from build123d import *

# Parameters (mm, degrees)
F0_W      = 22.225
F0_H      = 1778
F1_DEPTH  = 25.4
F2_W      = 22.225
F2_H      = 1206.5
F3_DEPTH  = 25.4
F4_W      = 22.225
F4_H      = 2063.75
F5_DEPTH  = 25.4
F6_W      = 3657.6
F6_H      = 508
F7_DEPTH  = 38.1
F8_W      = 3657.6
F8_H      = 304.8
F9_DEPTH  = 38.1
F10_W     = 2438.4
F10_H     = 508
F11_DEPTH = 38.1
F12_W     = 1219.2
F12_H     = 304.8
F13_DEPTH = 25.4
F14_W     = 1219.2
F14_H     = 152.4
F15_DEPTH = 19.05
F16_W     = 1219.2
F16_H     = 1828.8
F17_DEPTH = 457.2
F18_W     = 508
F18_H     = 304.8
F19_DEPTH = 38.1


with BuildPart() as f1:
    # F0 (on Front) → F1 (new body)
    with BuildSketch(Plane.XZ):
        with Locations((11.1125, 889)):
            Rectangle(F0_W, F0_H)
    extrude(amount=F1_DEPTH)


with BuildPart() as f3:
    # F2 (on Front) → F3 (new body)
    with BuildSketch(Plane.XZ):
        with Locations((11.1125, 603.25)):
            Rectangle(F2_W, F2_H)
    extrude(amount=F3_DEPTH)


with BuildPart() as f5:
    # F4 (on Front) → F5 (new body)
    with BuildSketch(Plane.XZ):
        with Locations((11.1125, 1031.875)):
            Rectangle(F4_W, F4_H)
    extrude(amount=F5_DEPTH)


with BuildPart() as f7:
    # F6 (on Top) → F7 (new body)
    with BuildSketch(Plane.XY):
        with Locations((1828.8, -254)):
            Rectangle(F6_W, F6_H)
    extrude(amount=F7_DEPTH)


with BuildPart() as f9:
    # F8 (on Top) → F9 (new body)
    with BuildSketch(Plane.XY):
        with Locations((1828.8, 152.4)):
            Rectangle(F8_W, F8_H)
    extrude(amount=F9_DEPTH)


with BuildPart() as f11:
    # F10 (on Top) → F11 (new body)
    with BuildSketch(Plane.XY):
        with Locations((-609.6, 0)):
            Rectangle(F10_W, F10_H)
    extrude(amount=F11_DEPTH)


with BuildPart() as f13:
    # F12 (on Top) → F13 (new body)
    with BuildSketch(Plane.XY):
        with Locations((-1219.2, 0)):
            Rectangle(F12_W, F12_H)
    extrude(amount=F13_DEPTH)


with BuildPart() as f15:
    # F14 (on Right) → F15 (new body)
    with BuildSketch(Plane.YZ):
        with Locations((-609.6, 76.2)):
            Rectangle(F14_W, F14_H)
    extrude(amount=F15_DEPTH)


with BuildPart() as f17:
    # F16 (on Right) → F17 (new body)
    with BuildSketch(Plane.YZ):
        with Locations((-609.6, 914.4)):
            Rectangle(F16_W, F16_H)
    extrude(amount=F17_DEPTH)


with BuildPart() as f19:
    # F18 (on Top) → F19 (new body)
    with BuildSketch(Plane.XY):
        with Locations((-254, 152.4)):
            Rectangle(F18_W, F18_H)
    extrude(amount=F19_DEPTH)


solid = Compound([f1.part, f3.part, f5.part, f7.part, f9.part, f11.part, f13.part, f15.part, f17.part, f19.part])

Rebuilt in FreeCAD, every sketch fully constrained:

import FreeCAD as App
import Part
import Sketcher
from FreeCAD import Vector
Q = App.Units.Quantity

doc = App.newDocument("Part")
body = doc.addObject("PartDesign::Body", "Body")

# Sketch on XZ plane
sketch1 = body.newObject("Sketcher::SketchObject", "Sketch")
sketch1.AttachmentSupport = (doc.getObject("XZ_Plane"), [""])
sketch1.MapMode = "FlatFace"
sketch1.addGeometry(Part.LineSegment(Vector(0, 1778, 0), Vector(0, 0, 0)), False)
sketch1.addGeometry(Part.LineSegment(Vector(0, 0, 0), Vector(22, 0, 0)), False)
sketch1.addGeometry(Part.LineSegment(Vector(22, 0, 0), Vector(22, 1778, 0)), False)
sketch1.addGeometry(Part.LineSegment(Vector(22, 1778, 0), Vector(0, 1778, 0)), False)
sketch1.addConstraint(Sketcher.Constraint("Coincident", 0, 2, 1, 1))
sketch1.addConstraint(Sketcher.Constraint("Coincident", 1, 2, 2, 1))
sketch1.addConstraint(Sketcher.Constraint("Coincident", 2, 2, 3, 1))
sketch1.addConstraint(Sketcher.Constraint("Coincident", 3, 2, 0, 1))
sketch1.addConstraint(Sketcher.Constraint("Vertical", 0))
sketch1.addConstraint(Sketcher.Constraint("Horizontal", 1))
sketch1.addConstraint(Sketcher.Constraint("Vertical", 2))
sketch1.addConstraint(Sketcher.Constraint("Horizontal", 3))
sketch1.addConstraint(Sketcher.Constraint("Coincident", 0, 2, -1, 1))
sketch1.addConstraint(Sketcher.Constraint("DistanceY", 0, 2, 0, 1, Q("70 in")))
sketch1.addConstraint(Sketcher.Constraint("DistanceX", 1, 1, 1, 2, Q("0.875 in")))
pad1 = body.newObject("PartDesign::Pad", "Pad")
pad1.Profile = sketch1
pad1.Length = Q("1 in")
body2 = doc.addObject("PartDesign::Body", "Body001")

# Sketch on XZ plane
sketch2 = body2.newObject("Sketcher::SketchObject", "Sketch001")
sketch2.AttachmentSupport = (doc.getObject("XZ_Plane001"), [""])
sketch2.MapMode = "FlatFace"
sketch2.addGeometry(Part.LineSegment(Vector(0, 1206, 0), Vector(0, 0, 0)), False)
sketch2.addGeometry(Part.LineSegment(Vector(0, 0, 0), Vector(22, 0, 0)), False)
sketch2.addGeometry(Part.LineSegment(Vector(22, 0, 0), Vector(22, 1206, 0)), False)
sketch2.addGeometry(Part.LineSegment(Vector(22, 1206, 0), Vector(0, 1206, 0)), False)
sketch2.addConstraint(Sketcher.Constraint("Coincident", 0, 2, 1, 1))
sketch2.addConstraint(Sketcher.Constraint("Coincident", 1, 2, 2, 1))
sketch2.addConstraint(Sketcher.Constraint("Coincident", 2, 2, 3, 1))
sketch2.addConstraint(Sketcher.Constraint("Coincident", 3, 2, 0, 1))
sketch2.addConstraint(Sketcher.Constraint("Vertical", 0))
sketch2.addConstraint(Sketcher.Constraint("Horizontal", 1))
sketch2.addConstraint(Sketcher.Constraint("Vertical", 2))
sketch2.addConstraint(Sketcher.Constraint("Horizontal", 3))
sketch2.addConstraint(Sketcher.Constraint("Coincident", 0, 2, -1, 1))
sketch2.addConstraint(Sketcher.Constraint("DistanceY", 0, 2, 0, 1, Q("47.5 in")))
sketch2.addConstraint(Sketcher.Constraint("DistanceX", 1, 1, 1, 2, Q("0.875 in")))
pad2 = body2.newObject("PartDesign::Pad", "Pad001")
pad2.Profile = sketch2
pad2.Length = Q("1 in")
body3 = doc.addObject("PartDesign::Body", "Body002")

# Sketch on XZ plane
sketch3 = body3.newObject("Sketcher::SketchObject", "Sketch002")
sketch3.AttachmentSupport = (doc.getObject("XZ_Plane002"), [""])
sketch3.MapMode = "FlatFace"
sketch3.addGeometry(Part.LineSegment(Vector(0, 2064, 0), Vector(0, 0, 0)), False)
sketch3.addGeometry(Part.LineSegment(Vector(0, 0, 0), Vector(22, 0, 0)), False)
sketch3.addGeometry(Part.LineSegment(Vector(22, 0, 0), Vector(22, 2064, 0)), False)
sketch3.addGeometry(Part.LineSegment(Vector(22, 2064, 0), Vector(0, 2064, 0)), False)
sketch3.addConstraint(Sketcher.Constraint("Coincident", 0, 2, 1, 1))
sketch3.addConstraint(Sketcher.Constraint("Coincident", 1, 2, 2, 1))
sketch3.addConstraint(Sketcher.Constraint("Coincident", 2, 2, 3, 1))
sketch3.addConstraint(Sketcher.Constraint("Coincident", 3, 2, 0, 1))
sketch3.addConstraint(Sketcher.Constraint("Vertical", 0))
sketch3.addConstraint(Sketcher.Constraint("Horizontal", 1))
sketch3.addConstraint(Sketcher.Constraint("Vertical", 2))
sketch3.addConstraint(Sketcher.Constraint("Horizontal", 3))
sketch3.addConstraint(Sketcher.Constraint("Coincident", 0, 2, -1, 1))
sketch3.addConstraint(Sketcher.Constraint("DistanceY", 0, 2, 0, 1, Q("81.25 in")))
sketch3.addConstraint(Sketcher.Constraint("DistanceX", 1, 1, 1, 2, Q("0.875 in")))
pad3 = body3.newObject("PartDesign::Pad", "Pad002")
pad3.Profile = sketch3
pad3.Length = Q("1 in")
body4 = doc.addObject("PartDesign::Body", "Body003")

# Sketch on XY plane
sketch4 = body4.newObject("Sketcher::SketchObject", "Sketch003")
sketch4.AttachmentSupport = (doc.getObject("XY_Plane003"), [""])
sketch4.MapMode = "FlatFace"
sketch4.addGeometry(Part.LineSegment(Vector(0, 0, 0), Vector(0, -508, 0)), False)
sketch4.addGeometry(Part.LineSegment(Vector(0, -508, 0), Vector(3658, -508, 0)), False)
sketch4.addGeometry(Part.LineSegment(Vector(3658, -508, 0), Vector(3658, 0, 0)), False)
sketch4.addGeometry(Part.LineSegment(Vector(3658, 0, 0), Vector(0, 0, 0)), False)
sketch4.addConstraint(Sketcher.Constraint("Coincident", 0, 2, 1, 1))
sketch4.addConstraint(Sketcher.Constraint("Coincident", 1, 2, 2, 1))
sketch4.addConstraint(Sketcher.Constraint("Coincident", 2, 2, 3, 1))
sketch4.addConstraint(Sketcher.Constraint("Coincident", 3, 2, 0, 1))
sketch4.addConstraint(Sketcher.Constraint("Vertical", 0))
sketch4.addConstraint(Sketcher.Constraint("Horizontal", 1))
sketch4.addConstraint(Sketcher.Constraint("Vertical", 2))
sketch4.addConstraint(Sketcher.Constraint("Horizontal", 3))
sketch4.addConstraint(Sketcher.Constraint("Coincident", 3, 2, -1, 1))
sketch4.addConstraint(Sketcher.Constraint("DistanceX", 1, 1, 1, 2, Q("144 in")))
sketch4.addConstraint(Sketcher.Constraint("DistanceY", 0, 2, 0, 1, Q("20 in")))
pad4 = body4.newObject("PartDesign::Pad", "Pad003")
pad4.Profile = sketch4
pad4.Length = Q("1.5 in")
body5 = doc.addObject("PartDesign::Body", "Body004")

# Sketch on XY plane
sketch5 = body5.newObject("Sketcher::SketchObject", "Sketch004")
sketch5.AttachmentSupport = (doc.getObject("XY_Plane004"), [""])
sketch5.MapMode = "FlatFace"
sketch5.addGeometry(Part.LineSegment(Vector(0, 305, 0), Vector(0, 0, 0)), False)
sketch5.addGeometry(Part.LineSegment(Vector(0, 0, 0), Vector(3658, 0, 0)), False)
sketch5.addGeometry(Part.LineSegment(Vector(3658, 0, 0), Vector(3658, 305, 0)), False)
sketch5.addGeometry(Part.LineSegment(Vector(3658, 305, 0), Vector(0, 305, 0)), False)
sketch5.addConstraint(Sketcher.Constraint("Coincident", 0, 2, 1, 1))
sketch5.addConstraint(Sketcher.Constraint("Coincident", 1, 2, 2, 1))
sketch5.addConstraint(Sketcher.Constraint("Coincident", 2, 2, 3, 1))
sketch5.addConstraint(Sketcher.Constraint("Coincident", 3, 2, 0, 1))
sketch5.addConstraint(Sketcher.Constraint("Vertical", 0))
sketch5.addConstraint(Sketcher.Constraint("Horizontal", 1))
sketch5.addConstraint(Sketcher.Constraint("Vertical", 2))
sketch5.addConstraint(Sketcher.Constraint("Horizontal", 3))
sketch5.addConstraint(Sketcher.Constraint("Coincident", 0, 2, -1, 1))
sketch5.addConstraint(Sketcher.Constraint("DistanceX", 1, 1, 1, 2, Q("144 in")))
sketch5.addConstraint(Sketcher.Constraint("DistanceY", 0, 2, 0, 1, Q("12 in")))
pad5 = body5.newObject("PartDesign::Pad", "Pad004")
pad5.Profile = sketch5
pad5.Length = Q("1.5 in")
body6 = doc.addObject("PartDesign::Body", "Body005")

# Sketch on XY plane
sketch6 = body6.newObject("Sketcher::SketchObject", "Sketch005")
sketch6.AttachmentSupport = (doc.getObject("XY_Plane005"), [""])
sketch6.MapMode = "FlatFace"
sketch6.addGeometry(Part.LineSegment(Vector(-1829, 254, 0), Vector(-1829, -254, 0)), False)
sketch6.addGeometry(Part.LineSegment(Vector(-1829, -254, 0), Vector(610, -254, 0)), False)
sketch6.addGeometry(Part.LineSegment(Vector(610, -254, 0), Vector(610, 254, 0)), False)
sketch6.addGeometry(Part.LineSegment(Vector(610, 254, 0), Vector(-1829, 254, 0)), False)
sketch6.addConstraint(Sketcher.Constraint("Coincident", 0, 2, 1, 1))
sketch6.addConstraint(Sketcher.Constraint("Coincident", 1, 2, 2, 1))
sketch6.addConstraint(Sketcher.Constraint("Coincident", 2, 2, 3, 1))
sketch6.addConstraint(Sketcher.Constraint("Coincident", 3, 2, 0, 1))
sketch6.addConstraint(Sketcher.Constraint("Vertical", 0))
sketch6.addConstraint(Sketcher.Constraint("Horizontal", 1))
sketch6.addConstraint(Sketcher.Constraint("Vertical", 2))
sketch6.addConstraint(Sketcher.Constraint("Horizontal", 3))
sketch6.addConstraint(Sketcher.Constraint("DistanceX", 1, 1, 1, 2, Q("96 in")))
sketch6.addConstraint(Sketcher.Constraint("DistanceY", 0, 2, 0, 1, Q("20 in")))
sketch6.addConstraint(Sketcher.Constraint("DistanceX", 0, 2, -1, 1, Q("72 in")))
sketch6.addConstraint(Sketcher.Constraint("DistanceY", 0, 2, -1, 1, Q("10 in")))
pad6 = body6.newObject("PartDesign::Pad", "Pad005")
pad6.Profile = sketch6
pad6.Length = Q("1.5 in")
body7 = doc.addObject("PartDesign::Body", "Body006")

# Sketch on XY plane
sketch7 = body7.newObject("Sketcher::SketchObject", "Sketch006")
sketch7.AttachmentSupport = (doc.getObject("XY_Plane006"), [""])
sketch7.MapMode = "FlatFace"
sketch7.addGeometry(Part.LineSegment(Vector(-1829, 152, 0), Vector(-1829, -152, 0)), False)
sketch7.addGeometry(Part.LineSegment(Vector(-1829, -152, 0), Vector(-610, -152, 0)), False)
sketch7.addGeometry(Part.LineSegment(Vector(-610, -152, 0), Vector(-610, 152, 0)), False)
sketch7.addGeometry(Part.LineSegment(Vector(-610, 152, 0), Vector(-1829, 152, 0)), False)
sketch7.addConstraint(Sketcher.Constraint("Coincident", 0, 2, 1, 1))
sketch7.addConstraint(Sketcher.Constraint("Coincident", 1, 2, 2, 1))
sketch7.addConstraint(Sketcher.Constraint("Coincident", 2, 2, 3, 1))
sketch7.addConstraint(Sketcher.Constraint("Coincident", 3, 2, 0, 1))
sketch7.addConstraint(Sketcher.Constraint("Vertical", 0))
sketch7.addConstraint(Sketcher.Constraint("Horizontal", 1))
sketch7.addConstraint(Sketcher.Constraint("Vertical", 2))
sketch7.addConstraint(Sketcher.Constraint("Horizontal", 3))
sketch7.addConstraint(Sketcher.Constraint("DistanceX", 1, 1, 1, 2, Q("48 in")))
sketch7.addConstraint(Sketcher.Constraint("DistanceY", 0, 2, 0, 1, Q("12 in")))
sketch7.addConstraint(Sketcher.Constraint("DistanceX", 0, 2, -1, 1, Q("72 in")))
sketch7.addConstraint(Sketcher.Constraint("DistanceY", 0, 2, -1, 1, Q("6 in")))
pad7 = body7.newObject("PartDesign::Pad", "Pad006")
pad7.Profile = sketch7
pad7.Length = Q("1 in")
body8 = doc.addObject("PartDesign::Body", "Body007")

# Sketch on YZ plane
sketch8 = body8.newObject("Sketcher::SketchObject", "Sketch007")
sketch8.AttachmentSupport = (doc.getObject("YZ_Plane007"), [""])
sketch8.MapMode = "FlatFace"
sketch8.addGeometry(Part.LineSegment(Vector(-1219, 152, 0), Vector(-1219, 0, 0)), False)
sketch8.addGeometry(Part.LineSegment(Vector(-1219, 0, 0), Vector(0, 0, 0)), False)
sketch8.addGeometry(Part.LineSegment(Vector(0, 0, 0), Vector(0, 152, 0)), False)
sketch8.addGeometry(Part.LineSegment(Vector(0, 152, 0), Vector(-1219, 152, 0)), False)
sketch8.addConstraint(Sketcher.Constraint("Coincident", 0, 2, 1, 1))
sketch8.addConstraint(Sketcher.Constraint("Coincident", 1, 2, 2, 1))
sketch8.addConstraint(Sketcher.Constraint("Coincident", 2, 2, 3, 1))
sketch8.addConstraint(Sketcher.Constraint("Coincident", 3, 2, 0, 1))
sketch8.addConstraint(Sketcher.Constraint("Vertical", 0))
sketch8.addConstraint(Sketcher.Constraint("Horizontal", 1))
sketch8.addConstraint(Sketcher.Constraint("Vertical", 2))
sketch8.addConstraint(Sketcher.Constraint("Horizontal", 3))
sketch8.addConstraint(Sketcher.Constraint("Coincident", 1, 2, -1, 1))
sketch8.addConstraint(Sketcher.Constraint("DistanceX", 1, 1, 1, 2, Q("48 in")))
sketch8.addConstraint(Sketcher.Constraint("DistanceY", 0, 2, 0, 1, Q("6 in")))
pad8 = body8.newObject("PartDesign::Pad", "Pad007")
pad8.Profile = sketch8
pad8.Length = Q("0.75 in")
body9 = doc.addObject("PartDesign::Body", "Body008")

# Sketch on YZ plane
sketch9 = body9.newObject("Sketcher::SketchObject", "Sketch008")
sketch9.AttachmentSupport = (doc.getObject("YZ_Plane008"), [""])
sketch9.MapMode = "FlatFace"
sketch9.addGeometry(Part.LineSegment(Vector(-1219, 1829, 0), Vector(-1219, 0, 0)), False)
sketch9.addGeometry(Part.LineSegment(Vector(-1219, 0, 0), Vector(0, 0, 0)), False)
sketch9.addGeometry(Part.LineSegment(Vector(0, 0, 0), Vector(0, 1829, 0)), False)
sketch9.addGeometry(Part.LineSegment(Vector(0, 1829, 0), Vector(-1219, 1829, 0)), False)
sketch9.addConstraint(Sketcher.Constraint("Coincident", 0, 2, 1, 1))
sketch9.addConstraint(Sketcher.Constraint("Coincident", 1, 2, 2, 1))
sketch9.addConstraint(Sketcher.Constraint("Coincident", 2, 2, 3, 1))
sketch9.addConstraint(Sketcher.Constraint("Coincident", 3, 2, 0, 1))
sketch9.addConstraint(Sketcher.Constraint("Vertical", 0))
sketch9.addConstraint(Sketcher.Constraint("Horizontal", 1))
sketch9.addConstraint(Sketcher.Constraint("Vertical", 2))
sketch9.addConstraint(Sketcher.Constraint("Horizontal", 3))
sketch9.addConstraint(Sketcher.Constraint("Coincident", 1, 2, -1, 1))
sketch9.addConstraint(Sketcher.Constraint("DistanceX", 1, 1, 1, 2, Q("48 in")))
sketch9.addConstraint(Sketcher.Constraint("DistanceY", 0, 2, 0, 1, Q("72 in")))
pad9 = body9.newObject("PartDesign::Pad", "Pad008")
pad9.Profile = sketch9
pad9.Length = Q("18 in")
body10 = doc.addObject("PartDesign::Body", "Body009")

# Sketch on XY plane
sketch10 = body10.newObject("Sketcher::SketchObject", "Sketch009")
sketch10.AttachmentSupport = (doc.getObject("XY_Plane009"), [""])
sketch10.MapMode = "FlatFace"
sketch10.addGeometry(Part.LineSegment(Vector(-508, 305, 0), Vector(-508, 0, 0)), False)
sketch10.addGeometry(Part.LineSegment(Vector(-508, 0, 0), Vector(0, 0, 0)), False)
sketch10.addGeometry(Part.LineSegment(Vector(0, 0, 0), Vector(0, 305, 0)), False)
sketch10.addGeometry(Part.LineSegment(Vector(0, 305, 0), Vector(-508, 305, 0)), False)
sketch10.addConstraint(Sketcher.Constraint("Coincident", 0, 2, 1, 1))
sketch10.addConstraint(Sketcher.Constraint("Coincident", 1, 2, 2, 1))
sketch10.addConstraint(Sketcher.Constraint("Coincident", 2, 2, 3, 1))
sketch10.addConstraint(Sketcher.Constraint("Coincident", 3, 2, 0, 1))
sketch10.addConstraint(Sketcher.Constraint("Vertical", 0))
sketch10.addConstraint(Sketcher.Constraint("Horizontal", 1))
sketch10.addConstraint(Sketcher.Constraint("Vertical", 2))
sketch10.addConstraint(Sketcher.Constraint("Horizontal", 3))
sketch10.addConstraint(Sketcher.Constraint("Coincident", 1, 2, -1, 1))
sketch10.addConstraint(Sketcher.Constraint("DistanceX", 1, 1, 1, 2, Q("20 in")))
sketch10.addConstraint(Sketcher.Constraint("DistanceY", 0, 2, 0, 1, Q("12 in")))
pad10 = body10.newObject("PartDesign::Pad", "Pad009")
pad10.Profile = sketch10
pad10.Length = Q("1.5 in")

doc.recompute()
